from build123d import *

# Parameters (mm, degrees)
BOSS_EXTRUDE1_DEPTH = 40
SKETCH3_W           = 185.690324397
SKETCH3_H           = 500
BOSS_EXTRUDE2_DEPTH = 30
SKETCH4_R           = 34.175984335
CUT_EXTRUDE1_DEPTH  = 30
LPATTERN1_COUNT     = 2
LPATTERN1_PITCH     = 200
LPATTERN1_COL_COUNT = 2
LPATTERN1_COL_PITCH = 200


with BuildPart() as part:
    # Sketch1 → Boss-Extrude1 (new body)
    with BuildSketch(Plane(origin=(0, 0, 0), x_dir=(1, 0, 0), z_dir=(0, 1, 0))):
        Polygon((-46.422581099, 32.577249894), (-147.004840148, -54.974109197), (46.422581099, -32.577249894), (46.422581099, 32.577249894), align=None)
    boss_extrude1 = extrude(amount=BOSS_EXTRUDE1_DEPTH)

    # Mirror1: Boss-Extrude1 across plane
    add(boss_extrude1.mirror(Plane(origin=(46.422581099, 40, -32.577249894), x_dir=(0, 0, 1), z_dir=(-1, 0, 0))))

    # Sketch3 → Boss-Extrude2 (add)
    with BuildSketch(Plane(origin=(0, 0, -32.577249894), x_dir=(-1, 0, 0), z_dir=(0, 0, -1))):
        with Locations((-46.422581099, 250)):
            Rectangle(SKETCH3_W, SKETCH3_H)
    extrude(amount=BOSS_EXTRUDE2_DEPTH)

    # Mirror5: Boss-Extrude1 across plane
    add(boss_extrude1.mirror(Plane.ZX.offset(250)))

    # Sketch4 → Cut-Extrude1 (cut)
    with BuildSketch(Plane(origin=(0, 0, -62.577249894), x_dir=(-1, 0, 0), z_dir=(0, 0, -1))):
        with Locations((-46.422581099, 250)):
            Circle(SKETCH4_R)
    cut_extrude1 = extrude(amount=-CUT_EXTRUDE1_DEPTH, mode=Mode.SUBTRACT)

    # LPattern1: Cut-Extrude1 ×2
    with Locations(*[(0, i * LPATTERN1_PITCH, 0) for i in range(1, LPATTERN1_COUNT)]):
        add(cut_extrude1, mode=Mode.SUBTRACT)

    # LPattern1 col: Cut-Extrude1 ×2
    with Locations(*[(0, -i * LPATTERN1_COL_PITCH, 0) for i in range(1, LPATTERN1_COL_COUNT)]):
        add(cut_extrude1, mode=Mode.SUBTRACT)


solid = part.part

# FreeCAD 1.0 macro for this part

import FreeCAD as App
import Part
import Sketcher

V = App.Vector

doc = App.newDocument("Part")
params = doc.addObject("Spreadsheet::Sheet", "Params")
for row, (alias, value) in enumerate([
    ("pad1_length", "40 mm"),
    ("sketch2_height", "500 mm"),
    ("pad2_length", "30 mm"),
    ("pocket1_length", "30 mm"),
    ("linearpattern_pitch", "200 mm"),
    ("linearpattern2_pitch", "200 mm"),
], start=1):
    params.set(f"A{row}", alias)
    params.set(f"B{row}", "=" + value)
    params.setAlias(f"B{row}", alias)

body = doc.addObject("PartDesign::Body", "Body")

sketch1 = doc.addObject("Sketcher::SketchObject", "Sketch")
body.addObject(sketch1)
sketch1.AttachmentSupport = (doc.XZ_Plane, [""])
sketch1.MapMode = "FlatFace"
sketch1.addGeometry([
    Part.LineSegment(V(-46, -33, 0), V(-147, 55, 0)),
    Part.LineSegment(V(-147, 55, 0), V(46, 33, 0)),
    Part.LineSegment(V(46, 33, 0), V(46, -33, 0)),
    Part.LineSegment(V(46, -33, 0), V(-46, -33, 0)),
], False)
sketch1.addConstraint([
    Sketcher.Constraint("Coincident", 0, 2, 1, 1),
    Sketcher.Constraint("Coincident", 1, 2, 2, 1),
    Sketcher.Constraint("Coincident", 2, 2, 3, 1),
    Sketcher.Constraint("Coincident", 3, 2, 0, 1),
    Sketcher.Constraint("Vertical", 2),
    Sketcher.Constraint("Horizontal", 3),
    Sketcher.Constraint("Symmetric", 1, 2, 3, 2, -1, 1),
    Sketcher.Constraint("DistanceY", 2, 2, 2, 1, 65.1545),
    Sketcher.Constraint("DistanceX", 3, 2, 3, 1, 92.845162),
    Sketcher.Constraint("DistanceX", 0, 2, -1, 1, 147.00484),
    Sketcher.Constraint("DistanceY", -1, 1, 0, 2, 54.974109),
])
pad1 = doc.addObject("PartDesign::Pad", "Pad")
body.addObject(pad1)
pad1.Profile = sketch1
pad1.setExpression("Length", "Params.pad1_length")
pad1.Reversed = True
doc.recompute()

datumplane = doc.addObject("PartDesign::Plane", "DatumPlane")
body.addObject(datumplane)
datumplane.AttachmentSupport = (doc.YZ_Plane, [""])
datumplane.MapMode = "FlatFace"
datumplane.AttachmentOffset = App.Placement(V(0, 0, 46.422581), App.Rotation())
mirrored = doc.addObject("PartDesign::Mirrored", "Mirrored")
body.addObject(mirrored)
mirrored.Originals = [pad1]
mirrored.MirrorPlane = (datumplane, [""])
body.Tip = mirrored

sketch2 = doc.addObject("Sketcher::SketchObject", "Sketch001")
body.addObject(sketch2)
sketch2.AttachmentSupport = (doc.XY_Plane, [""])
sketch2.MapMode = "FlatFace"
sketch2.AttachmentOffset = App.Placement(V(0, 0, -32.57725), App.Rotation())
sketch2.addGeometry([
    Part.LineSegment(V(139, 500, 0), V(139, 0, 0)),
    Part.LineSegment(V(139, 0, 0), V(-46, 0, 0)),
    Part.LineSegment(V(-46, 0, 0), V(-46, 500, 0)),
    Part.LineSegment(V(-46, 500, 0), V(139, 500, 0)),
], False)
sketch2.addConstraint([
    Sketcher.Constraint("Coincident", 0, 2, 1, 1),
    Sketcher.Constraint("Coincident", 1, 2, 2, 1),
    Sketcher.Constraint("Coincident", 2, 2, 3, 1),
    Sketcher.Constraint("Coincident", 3, 2, 0, 1),
    Sketcher.Constraint("Vertical", 0),
    Sketcher.Constraint("Horizontal", 1),
    Sketcher.Constraint("Vertical", 2),
    Sketcher.Constraint("Horizontal", 3),
    Sketcher.Constraint("PointOnObject", 0, 2, -1),
    Sketcher.Constraint("DistanceY", 0, 2, 0, 1, 500.0),
    Sketcher.Constraint("DistanceX", 1, 2, 1, 1, 185.690324),
    Sketcher.Constraint("DistanceX", 1, 2, -1, 1, 46.422581),
])
sketch2.setExpression("Constraints[9]", "Params.sketch2_height")
pad2 = doc.addObject("PartDesign::Pad", "Pad001")
body.addObject(pad2)
pad2.Profile = sketch2
pad2.setExpression("Length", "Params.pad2_length")
pad2.Reversed = True
doc.recompute()

datumplane2 = doc.addObject("PartDesign::Plane", "DatumPlane001")
body.addObject(datumplane2)
datumplane2.AttachmentSupport = (doc.XZ_Plane, [""])
datumplane2.MapMode = "FlatFace"
datumplane2.AttachmentOffset = App.Placement(V(0, 0, -250), App.Rotation())
mirrored2 = doc.addObject("PartDesign::Mirrored", "Mirrored001")
body.addObject(mirrored2)
mirrored2.Originals = [pad1]
mirrored2.MirrorPlane = (datumplane2, [""])
body.Tip = mirrored2

sketch3 = doc.addObject("Sketcher::SketchObject", "Sketch002")
body.addObject(sketch3)
sketch3.AttachmentSupport = (doc.XY_Plane, [""])
sketch3.MapMode = "FlatFace"
sketch3.AttachmentOffset = App.Placement(V(0, 0, -62.57725), App.Rotation())
sketch3.addGeometry(Part.Circle(V(46, 250, 0), V(0, 0, 1), 34), False)
sketch3.addConstraint([
    Sketcher.Constraint("DistanceY", -1, 1, 0, 3, 250.0),
    Sketcher.Constraint("Diameter", 0, 68.351969),
    Sketcher.Constraint("DistanceX", -1, 1, 0, 3, 46.422581),
])
pocket1 = doc.addObject("PartDesign::Pocket", "Pocket")
body.addObject(pocket1)
pocket1.Profile = sketch3
pocket1.setExpression("Length", "Params.pocket1_length")
pocket1.Reversed = True
doc.recompute()

linearpattern = doc.addObject("PartDesign::LinearPattern", "LinearPattern")
body.addObject(linearpattern)
linearpattern.Originals = [pocket1]
linearpattern.Direction = (doc.Y_Axis, [""])
linearpattern.Mode = "offset"
linearpattern.setExpression("Offset", "Params.linearpattern_pitch")
linearpattern.Occurrences = 2
body.Tip = linearpattern
doc.recompute()

linearpattern2 = doc.addObject("PartDesign::LinearPattern", "LinearPattern001")
body.addObject(linearpattern2)
linearpattern2.Originals = [pocket1]
linearpattern2.Direction = (doc.Y_Axis, [""])
linearpattern2.Mode = "offset"
linearpattern2.setExpression("Offset", "Params.linearpattern2_pitch")
linearpattern2.Occurrences = 2
linearpattern2.Reversed = True
body.Tip = linearpattern2

doc.recompute()
